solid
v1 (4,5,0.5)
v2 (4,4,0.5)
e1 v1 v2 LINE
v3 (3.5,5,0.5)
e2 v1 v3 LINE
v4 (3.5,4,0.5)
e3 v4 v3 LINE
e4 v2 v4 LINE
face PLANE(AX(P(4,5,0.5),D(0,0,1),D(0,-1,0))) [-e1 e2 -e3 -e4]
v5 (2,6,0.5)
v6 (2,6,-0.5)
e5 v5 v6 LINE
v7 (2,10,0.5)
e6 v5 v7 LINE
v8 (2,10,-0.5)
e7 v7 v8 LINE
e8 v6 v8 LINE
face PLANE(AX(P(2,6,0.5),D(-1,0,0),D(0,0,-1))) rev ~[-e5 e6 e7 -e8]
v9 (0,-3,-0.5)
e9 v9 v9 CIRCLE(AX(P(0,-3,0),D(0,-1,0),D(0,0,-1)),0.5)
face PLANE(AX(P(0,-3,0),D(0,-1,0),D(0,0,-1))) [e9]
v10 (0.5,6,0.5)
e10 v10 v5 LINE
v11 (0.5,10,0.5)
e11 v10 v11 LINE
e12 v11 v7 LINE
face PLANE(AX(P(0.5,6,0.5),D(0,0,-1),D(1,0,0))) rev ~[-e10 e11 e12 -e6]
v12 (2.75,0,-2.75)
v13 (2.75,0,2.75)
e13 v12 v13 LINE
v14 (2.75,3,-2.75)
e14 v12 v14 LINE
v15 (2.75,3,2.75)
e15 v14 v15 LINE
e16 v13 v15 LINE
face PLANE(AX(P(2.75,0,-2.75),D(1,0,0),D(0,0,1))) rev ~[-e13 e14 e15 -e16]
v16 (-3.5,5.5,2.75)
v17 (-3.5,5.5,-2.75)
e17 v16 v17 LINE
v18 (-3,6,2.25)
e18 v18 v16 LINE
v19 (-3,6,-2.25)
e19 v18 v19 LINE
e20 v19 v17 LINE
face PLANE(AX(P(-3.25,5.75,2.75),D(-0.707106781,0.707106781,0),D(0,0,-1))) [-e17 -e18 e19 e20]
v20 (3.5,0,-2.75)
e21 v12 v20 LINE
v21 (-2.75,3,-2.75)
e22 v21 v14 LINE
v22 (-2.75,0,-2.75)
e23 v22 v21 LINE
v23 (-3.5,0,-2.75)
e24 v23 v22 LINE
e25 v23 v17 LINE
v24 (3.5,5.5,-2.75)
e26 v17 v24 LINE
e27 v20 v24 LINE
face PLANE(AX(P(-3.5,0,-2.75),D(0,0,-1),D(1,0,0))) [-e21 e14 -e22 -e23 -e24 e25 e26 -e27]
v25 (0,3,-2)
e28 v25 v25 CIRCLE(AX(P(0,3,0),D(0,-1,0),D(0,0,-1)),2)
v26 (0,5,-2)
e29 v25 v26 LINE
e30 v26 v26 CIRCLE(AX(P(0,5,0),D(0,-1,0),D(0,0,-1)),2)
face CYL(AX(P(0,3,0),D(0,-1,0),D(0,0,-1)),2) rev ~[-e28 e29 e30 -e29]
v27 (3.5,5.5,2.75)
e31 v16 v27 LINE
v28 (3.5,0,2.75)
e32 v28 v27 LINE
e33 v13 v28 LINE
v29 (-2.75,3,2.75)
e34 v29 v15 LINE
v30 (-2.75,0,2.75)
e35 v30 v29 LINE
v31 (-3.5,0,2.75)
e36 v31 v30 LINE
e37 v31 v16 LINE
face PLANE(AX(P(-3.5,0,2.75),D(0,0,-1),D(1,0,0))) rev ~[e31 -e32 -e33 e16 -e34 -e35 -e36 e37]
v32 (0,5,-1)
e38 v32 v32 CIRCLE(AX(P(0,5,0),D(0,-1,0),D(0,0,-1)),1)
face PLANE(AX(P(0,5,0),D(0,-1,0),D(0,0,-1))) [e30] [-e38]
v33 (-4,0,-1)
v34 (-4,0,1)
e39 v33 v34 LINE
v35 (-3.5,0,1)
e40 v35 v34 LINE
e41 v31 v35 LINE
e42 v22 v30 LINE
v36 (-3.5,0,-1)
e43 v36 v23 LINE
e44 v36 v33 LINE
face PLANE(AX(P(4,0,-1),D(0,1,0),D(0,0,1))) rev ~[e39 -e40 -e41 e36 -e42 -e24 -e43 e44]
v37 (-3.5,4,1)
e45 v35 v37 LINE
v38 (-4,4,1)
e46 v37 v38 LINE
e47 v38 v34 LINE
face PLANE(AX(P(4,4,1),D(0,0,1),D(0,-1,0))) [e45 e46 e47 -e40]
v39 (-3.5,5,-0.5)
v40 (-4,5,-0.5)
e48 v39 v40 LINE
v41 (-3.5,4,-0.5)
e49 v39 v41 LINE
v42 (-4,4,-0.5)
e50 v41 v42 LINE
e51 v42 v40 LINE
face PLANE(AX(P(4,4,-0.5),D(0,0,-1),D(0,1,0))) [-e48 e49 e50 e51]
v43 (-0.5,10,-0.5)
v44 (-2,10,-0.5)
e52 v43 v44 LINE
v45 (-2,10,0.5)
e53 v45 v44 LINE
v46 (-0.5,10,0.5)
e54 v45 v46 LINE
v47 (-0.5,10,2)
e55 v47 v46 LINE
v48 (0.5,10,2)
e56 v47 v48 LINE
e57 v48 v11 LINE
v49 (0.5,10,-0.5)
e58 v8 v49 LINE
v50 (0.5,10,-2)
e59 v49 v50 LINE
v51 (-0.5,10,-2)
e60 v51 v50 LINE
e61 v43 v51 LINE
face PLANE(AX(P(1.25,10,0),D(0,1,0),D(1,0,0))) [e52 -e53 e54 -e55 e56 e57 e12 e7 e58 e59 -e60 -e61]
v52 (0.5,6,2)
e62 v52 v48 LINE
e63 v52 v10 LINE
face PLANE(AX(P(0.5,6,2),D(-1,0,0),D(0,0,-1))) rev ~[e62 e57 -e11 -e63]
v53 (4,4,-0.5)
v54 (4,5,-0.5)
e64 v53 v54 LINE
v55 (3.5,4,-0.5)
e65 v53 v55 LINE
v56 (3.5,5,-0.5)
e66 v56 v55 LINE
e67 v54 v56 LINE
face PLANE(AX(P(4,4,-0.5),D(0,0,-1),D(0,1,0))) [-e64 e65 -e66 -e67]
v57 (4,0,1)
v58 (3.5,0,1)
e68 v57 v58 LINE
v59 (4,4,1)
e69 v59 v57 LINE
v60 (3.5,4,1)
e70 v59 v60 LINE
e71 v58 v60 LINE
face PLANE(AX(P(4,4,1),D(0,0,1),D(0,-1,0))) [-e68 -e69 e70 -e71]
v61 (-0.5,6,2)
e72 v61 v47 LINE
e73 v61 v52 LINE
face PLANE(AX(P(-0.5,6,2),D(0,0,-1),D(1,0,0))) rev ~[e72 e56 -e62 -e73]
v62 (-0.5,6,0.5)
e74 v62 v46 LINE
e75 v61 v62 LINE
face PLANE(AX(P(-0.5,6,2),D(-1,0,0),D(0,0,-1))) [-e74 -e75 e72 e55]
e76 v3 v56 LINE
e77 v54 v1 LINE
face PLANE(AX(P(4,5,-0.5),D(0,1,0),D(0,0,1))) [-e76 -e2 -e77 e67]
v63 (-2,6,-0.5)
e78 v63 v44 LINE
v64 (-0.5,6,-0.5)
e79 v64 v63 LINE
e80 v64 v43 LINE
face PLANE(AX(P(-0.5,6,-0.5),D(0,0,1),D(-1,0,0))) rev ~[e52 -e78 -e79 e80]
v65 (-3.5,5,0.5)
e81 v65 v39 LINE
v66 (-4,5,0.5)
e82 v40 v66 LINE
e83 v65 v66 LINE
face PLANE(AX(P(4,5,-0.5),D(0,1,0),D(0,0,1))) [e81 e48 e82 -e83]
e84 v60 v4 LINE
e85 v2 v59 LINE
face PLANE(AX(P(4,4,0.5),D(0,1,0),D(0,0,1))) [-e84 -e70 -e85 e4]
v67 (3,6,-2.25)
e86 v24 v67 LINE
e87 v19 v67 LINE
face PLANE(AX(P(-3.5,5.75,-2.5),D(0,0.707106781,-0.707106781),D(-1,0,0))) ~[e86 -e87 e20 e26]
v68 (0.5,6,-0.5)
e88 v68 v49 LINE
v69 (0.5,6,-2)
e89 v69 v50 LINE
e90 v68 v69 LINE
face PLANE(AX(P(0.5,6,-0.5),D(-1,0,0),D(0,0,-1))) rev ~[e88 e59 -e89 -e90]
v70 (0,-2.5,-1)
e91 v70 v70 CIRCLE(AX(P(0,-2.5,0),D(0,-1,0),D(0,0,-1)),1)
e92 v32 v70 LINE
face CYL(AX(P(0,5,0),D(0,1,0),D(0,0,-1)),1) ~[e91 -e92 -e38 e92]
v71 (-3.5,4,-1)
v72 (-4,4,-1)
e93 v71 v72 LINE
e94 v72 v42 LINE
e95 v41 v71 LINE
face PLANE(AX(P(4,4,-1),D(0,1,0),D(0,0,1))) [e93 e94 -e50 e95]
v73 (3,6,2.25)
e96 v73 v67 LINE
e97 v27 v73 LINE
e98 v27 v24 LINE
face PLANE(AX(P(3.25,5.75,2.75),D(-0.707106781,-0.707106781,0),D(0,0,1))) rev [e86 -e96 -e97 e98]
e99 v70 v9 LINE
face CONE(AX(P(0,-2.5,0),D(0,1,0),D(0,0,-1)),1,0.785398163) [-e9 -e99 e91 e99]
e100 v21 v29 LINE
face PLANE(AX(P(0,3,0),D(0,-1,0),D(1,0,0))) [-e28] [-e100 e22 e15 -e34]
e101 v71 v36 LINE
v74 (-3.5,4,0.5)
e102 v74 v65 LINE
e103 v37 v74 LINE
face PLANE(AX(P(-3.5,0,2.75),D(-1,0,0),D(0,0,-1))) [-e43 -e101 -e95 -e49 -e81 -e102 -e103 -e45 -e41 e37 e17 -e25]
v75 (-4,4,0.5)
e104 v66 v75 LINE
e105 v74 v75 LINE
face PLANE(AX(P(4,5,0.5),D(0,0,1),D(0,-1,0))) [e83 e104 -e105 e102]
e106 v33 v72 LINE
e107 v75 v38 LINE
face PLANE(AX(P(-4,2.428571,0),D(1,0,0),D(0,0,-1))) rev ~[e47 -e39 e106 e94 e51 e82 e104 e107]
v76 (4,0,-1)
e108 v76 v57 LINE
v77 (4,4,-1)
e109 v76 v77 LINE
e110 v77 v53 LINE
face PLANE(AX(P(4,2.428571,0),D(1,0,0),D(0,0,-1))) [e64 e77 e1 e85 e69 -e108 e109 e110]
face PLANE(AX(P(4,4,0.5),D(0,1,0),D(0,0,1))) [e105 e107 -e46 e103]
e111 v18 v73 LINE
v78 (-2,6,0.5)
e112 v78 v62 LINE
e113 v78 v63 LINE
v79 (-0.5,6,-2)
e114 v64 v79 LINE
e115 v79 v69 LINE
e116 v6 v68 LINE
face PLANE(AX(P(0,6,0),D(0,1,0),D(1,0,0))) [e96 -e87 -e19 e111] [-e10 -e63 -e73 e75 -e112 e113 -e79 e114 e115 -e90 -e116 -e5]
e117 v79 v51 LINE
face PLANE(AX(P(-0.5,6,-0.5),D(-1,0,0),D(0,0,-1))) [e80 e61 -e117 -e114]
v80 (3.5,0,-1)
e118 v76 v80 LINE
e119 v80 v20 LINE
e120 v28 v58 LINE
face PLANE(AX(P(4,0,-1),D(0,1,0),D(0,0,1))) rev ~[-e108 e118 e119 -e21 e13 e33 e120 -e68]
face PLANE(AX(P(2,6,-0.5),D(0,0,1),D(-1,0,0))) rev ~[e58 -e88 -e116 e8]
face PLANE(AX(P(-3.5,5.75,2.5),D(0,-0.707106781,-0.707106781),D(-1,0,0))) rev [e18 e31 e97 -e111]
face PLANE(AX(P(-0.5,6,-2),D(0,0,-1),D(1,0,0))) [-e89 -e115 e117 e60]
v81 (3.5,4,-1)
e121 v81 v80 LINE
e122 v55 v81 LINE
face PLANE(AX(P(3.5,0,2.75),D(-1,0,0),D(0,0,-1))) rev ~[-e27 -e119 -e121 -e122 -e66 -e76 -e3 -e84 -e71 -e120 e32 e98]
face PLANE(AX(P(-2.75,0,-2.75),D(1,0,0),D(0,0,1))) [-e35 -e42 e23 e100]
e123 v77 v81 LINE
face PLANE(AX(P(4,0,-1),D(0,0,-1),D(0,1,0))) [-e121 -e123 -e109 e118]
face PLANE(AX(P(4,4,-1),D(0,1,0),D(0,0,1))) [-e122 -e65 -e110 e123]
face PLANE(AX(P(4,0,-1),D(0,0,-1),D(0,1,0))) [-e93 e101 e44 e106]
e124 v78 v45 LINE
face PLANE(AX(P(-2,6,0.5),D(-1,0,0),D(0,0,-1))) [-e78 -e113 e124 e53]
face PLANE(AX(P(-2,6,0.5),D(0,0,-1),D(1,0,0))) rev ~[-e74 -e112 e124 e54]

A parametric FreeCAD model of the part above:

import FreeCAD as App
import Part
import Sketcher
Q = App.Units.Quantity


def edges_at(feature, points):
    """Names of the edges that pass closest to the given points."""
    edges = feature.Shape.Edges
    near = lambda p: min(range(len(edges)), key=lambda i: edges[i].distToShape(Part.Vertex(*p))[0])
    return sorted({f"Edge{near(p) + 1}" for p in points})


def add_polygon(sketch, points):
    """Adds a closed chain of lines whose ends are joined by coincident constraints."""
    first, n = sketch.GeometryCount, len(points)
    for a, b in zip(points, points[1:] + points[:1]):
        sketch.addGeometry(Part.LineSegment(App.Vector(*a, 0), App.Vector(*b, 0)), False)
    for i in range(n):
        sketch.addConstraint(Sketcher.Constraint("Coincident", first + i, 2, first + (i + 1) % n, 1))

doc = App.newDocument("Part")
params = doc.addObject("Spreadsheet::Sheet", "Params")
for row, (alias, value) in enumerate([
    ("sketch1_width", "7 mm"),
    ("sketch1_height", "5.5 mm"),
    ("pad1_length", "6 mm"),
    ("sketch2_width", "4 mm"),
    ("sketch2_width2", "1 mm"),
    ("sketch2_height", "2 mm"),
    ("pad2_length", "0.5 mm"),
    ("pad2_length2", "7.5 mm"),
    ("sketch3_width", "5.5 mm"),
    ("pocket1_length", "3 mm"),
    ("sketch4_width", "1 mm"),
    ("sketch4_width2", "1.5 mm"),
    ("pad3_length", "4 mm"),
    ("sketch5_diameter", "4 mm"),
    ("pocket2_length", "2 mm"),
    ("sketch6_diameter", "2 mm"),
    ("pad4_length", "8 mm"),
    ("chamfer_size", "0.5 mm"),
], start=1):
    params.set(f"A{row}", alias)
    params.set(f"B{row}", "=" + value)
    params.setAlias(f"B{row}", alias)

body = doc.addObject("PartDesign::Body", "Body")

# Sketch on XZ plane
sketch1 = body.newObject("Sketcher::SketchObject", "Sketch")
sketch1.AttachmentSupport = (doc.getObject("XZ_Plane"), [""])
sketch1.MapMode = "FlatFace"
add_polygon(sketch1, [(-4, -3), (-4, 3), (4, 3), (4, -3)])  # lines 0-3
sketch1.addConstraint(Sketcher.Constraint("Vertical", 0))
sketch1.addConstraint(Sketcher.Constraint("Horizontal", 1))
sketch1.addConstraint(Sketcher.Constraint("Vertical", 2))
sketch1.addConstraint(Sketcher.Constraint("Horizontal", 3))
sketch1.addConstraint(Sketcher.Constraint("Symmetric", 0, 2, 2, 2, -1, 1))
sketch1.addConstraint(Sketcher.Constraint("DistanceX", 1, 1, 1, 2, Q("7 mm")))
sketch1.addConstraint(Sketcher.Constraint("DistanceY", 0, 1, 0, 2, Q("5.5 mm")))
sketch1.setExpression("Constraints[9]", "Params.sketch1_width")
sketch1.setExpression("Constraints[10]", "Params.sketch1_height")
pad1 = body.newObject("PartDesign::Pad", "Pad")
pad1.Profile = sketch1
pad1.setExpression("Length", "Params.pad1_length")
pad1.Reversed = True

# Sketch on YZ plane
sketch2 = body.newObject("Sketcher::SketchObject", "Sketch001")
sketch2.AttachmentSupport = (doc.getObject("YZ_Plane"), [""])
sketch2.MapMode = "FlatFace"
sketch2.AttachmentOffset = App.Placement(App.Vector(0, 0, -3.5), App.Rotation())
add_polygon(sketch2, [(0, -1), (0, 1), (4, 1), (4, 0.5), (5, 0.5), (5, -0.5), (4, -0.5), (4, -1)])  # lines 0-7
sketch2.addConstraint(Sketcher.Constraint("Vertical", 0))
sketch2.addConstraint(Sketcher.Constraint("Horizontal", 1))
sketch2.addConstraint(Sketcher.Constraint("Vertical", 2))
sketch2.addConstraint(Sketcher.Constraint("Horizontal", 3))
sketch2.addConstraint(Sketcher.Constraint("Vertical", 4))
sketch2.addConstraint(Sketcher.Constraint("Horizontal", 5))
sketch2.addConstraint(Sketcher.Constraint("Vertical", 6))
sketch2.addConstraint(Sketcher.Constraint("Horizontal", 7))
sketch2.addConstraint(Sketcher.Constraint("Symmetric", 0, 2, 7, 2, -1, 1))
sketch2.addConstraint(Sketcher.Constraint("Symmetric", 2, 2, 5, 2, -1))
sketch2.addConstraint(Sketcher.Constraint("Equal", 5, 4))
sketch2.addConstraint(Sketcher.Constraint("DistanceX", 1, 1, 1, 2, Q("4 mm")))
sketch2.addConstraint(Sketcher.Constraint("DistanceX", 3, 1, 3, 2, Q("1 mm")))
sketch2.addConstraint(Sketcher.Constraint("DistanceY", 0, 1, 0, 2, Q("2 mm")))
sketch2.setExpression("Constraints[19]", "Params.sketch2_width")
sketch2.setExpression("Constraints[20]", "Params.sketch2_width2")
sketch2.setExpression("Constraints[21]", "Params.sketch2_height")
pad2 = body.newObject("PartDesign::Pad", "Pad001")
pad2.Profile = sketch2
pad2.Type = "TwoLengths"
pad2.setExpression("Length", "Params.pad2_length")
pad2.setExpression("Length2", "Params.pad2_length2")
pad2.Reversed = True

# Sketch on XZ plane
sketch3 = body.newObject("Sketcher::SketchObject", "Sketch002")
sketch3.AttachmentSupport = (doc.getObject("XZ_Plane"), [""])
sketch3.MapMode = "FlatFace"
add_polygon(sketch3, [(-3, 3), (-3, -3), (3, -3), (3, 3)])  # lines 0-3
sketch3.addConstraint(Sketcher.Constraint("Vertical", 0))
sketch3.addConstraint(Sketcher.Constraint("Horizontal", 1))
sketch3.addConstraint(Sketcher.Constraint("Vertical", 2))
sketch3.addConstraint(Sketcher.Constraint("Horizontal", 3))
sketch3.addConstraint(Sketcher.Constraint("Symmetric", 0, 2, 2, 2, -1, 1))
sketch3.addConstraint(Sketcher.Constraint("Equal", 3, 0))
sketch3.addConstraint(Sketcher.Constraint("DistanceX", 1, 1, 1, 2, Q("5.5 mm")))
sketch3.setExpression("Constraints[10]", "Params.sketch3_width")
pocket1 = body.newObject("PartDesign::Pocket", "Pocket")
pocket1.Profile = sketch3
pocket1.setExpression("Length", "Params.pocket1_length")

# Sketch on XZ plane
sketch4 = body.newObject("Sketcher::SketchObject", "Sketch003")
sketch4.AttachmentSupport = (doc.getObject("XZ_Plane"), [""])
sketch4.MapMode = "FlatFace"
sketch4.AttachmentOffset = App.Placement(App.Vector(0, 0, -6), App.Rotation())
add_polygon(sketch4, [(0.5, 0.5), (2, 0.5), (2, -0.5), (0.5, -0.5), (0.5, -2), (-0.5, -2), (-0.5, -0.5), (-2, -0.5), (-2, 0.5), (-0.5, 0.5), (-0.5, 2), (0.5, 2)])  # lines 0-11
sketch4.addConstraint(Sketcher.Constraint("Horizontal", 0))
sketch4.addConstraint(Sketcher.Constraint("Vertical", 1))
sketch4.addConstraint(Sketcher.Constraint("Horizontal", 2))
sketch4.addConstraint(Sketcher.Constraint("Vertical", 3))
sketch4.addConstraint(Sketcher.Constraint("Horizontal", 4))
sketch4.addConstraint(Sketcher.Constraint("Vertical", 5))
sketch4.addConstraint(Sketcher.Constraint("Horizontal", 6))
sketch4.addConstraint(Sketcher.Constraint("Vertical", 7))
sketch4.addConstraint(Sketcher.Constraint("Horizontal", 8))
sketch4.addConstraint(Sketcher.Constraint("Vertical", 9))
sketch4.addConstraint(Sketcher.Constraint("Horizontal", 10))
sketch4.addConstraint(Sketcher.Constraint("Vertical", 11))
sketch4.addConstraint(Sketcher.Constraint("Symmetric", 0, 2, 6, 2, -1, 1))
sketch4.addConstraint(Sketcher.Constraint("Symmetric", 2, 2, 8, 2, -1, 1))
sketch4.addConstraint(Sketcher.Constraint("Symmetric", 4, 2, 10, 2, -1, 1))
sketch4.addConstraint(Sketcher.Constraint("Symmetric", 2, 2, 5, 2, -2))
sketch4.addConstraint(Sketcher.Constraint("Equal", 10, 1))
sketch4.addConstraint(Sketcher.Constraint("Equal", 8, 3))
sketch4.addConstraint(Sketcher.Constraint("DistanceX", 4, 2, 4, 1, Q("1 mm")))
sketch4.addConstraint(Sketcher.Constraint("DistanceX", 0, 1, 0, 2, Q("1.5 mm")))
sketch4.setExpression("Constraints[30]", "Params.sketch4_width")
sketch4.setExpression("Constraints[31]", "Params.sketch4_width2")
pad3 = body.newObject("PartDesign::Pad", "Pad002")
pad3.Profile = sketch4
pad3.setExpression("Length", "Params.pad3_length")
pad3.Reversed = True

# Sketch on XZ plane
sketch5 = body.newObject("Sketcher::SketchObject", "Sketch004")
sketch5.AttachmentSupport = (doc.getObject("XZ_Plane"), [""])
sketch5.MapMode = "FlatFace"
sketch5.AttachmentOffset = App.Placement(App.Vector(0, 0, -3), App.Rotation())
sketch5.addGeometry(Part.Circle(App.Vector(0, 0, 0), App.Vector(0, 0, 1), 2), False)
sketch5.addConstraint(Sketcher.Constraint("Coincident", 0, 3, -1, 1))
sketch5.addConstraint(Sketcher.Constraint("Diameter", 0, Q("4 mm")))
sketch5.setExpression("Constraints[1]", "Params.sketch5_diameter")
pocket2 = body.newObject("PartDesign::Pocket", "Pocket001")
pocket2.Profile = sketch5
pocket2.setExpression("Length", "Params.pocket2_length")

# Sketch on XZ plane
sketch6 = body.newObject("Sketcher::SketchObject", "Sketch005")
sketch6.AttachmentSupport = (doc.getObject("XZ_Plane"), [""])
sketch6.MapMode = "FlatFace"
sketch6.AttachmentOffset = App.Placement(App.Vector(0, 0, -5), App.Rotation())
sketch6.addGeometry(Part.Circle(App.Vector(0, 0, 0), App.Vector(0, 0, 1), 1), False)
sketch6.addConstraint(Sketcher.Constraint("Coincident", 0, 3, -1, 1))
sketch6.addConstraint(Sketcher.Constraint("Diameter", 0, Q("2 mm")))
sketch6.setExpression("Constraints[1]", "Params.sketch6_diameter")
pad4 = body.newObject("PartDesign::Pad", "Pad003")
pad4.Profile = sketch6
pad4.setExpression("Length", "Params.pad4_length")
doc.recompute()

chamfer = body.newObject("PartDesign::Chamfer", "Chamfer")
chamfer.Base = (pad4, edges_at(pad4, [
    (0, -3, 1),
    (-3.5, 6, 0),
    (0, 6, 2.75),
    (3.5, 6, 0),
    (0, 6, -2.75),
]))
chamfer.setExpression("Size", "Params.chamfer_size")

doc.recompute()
